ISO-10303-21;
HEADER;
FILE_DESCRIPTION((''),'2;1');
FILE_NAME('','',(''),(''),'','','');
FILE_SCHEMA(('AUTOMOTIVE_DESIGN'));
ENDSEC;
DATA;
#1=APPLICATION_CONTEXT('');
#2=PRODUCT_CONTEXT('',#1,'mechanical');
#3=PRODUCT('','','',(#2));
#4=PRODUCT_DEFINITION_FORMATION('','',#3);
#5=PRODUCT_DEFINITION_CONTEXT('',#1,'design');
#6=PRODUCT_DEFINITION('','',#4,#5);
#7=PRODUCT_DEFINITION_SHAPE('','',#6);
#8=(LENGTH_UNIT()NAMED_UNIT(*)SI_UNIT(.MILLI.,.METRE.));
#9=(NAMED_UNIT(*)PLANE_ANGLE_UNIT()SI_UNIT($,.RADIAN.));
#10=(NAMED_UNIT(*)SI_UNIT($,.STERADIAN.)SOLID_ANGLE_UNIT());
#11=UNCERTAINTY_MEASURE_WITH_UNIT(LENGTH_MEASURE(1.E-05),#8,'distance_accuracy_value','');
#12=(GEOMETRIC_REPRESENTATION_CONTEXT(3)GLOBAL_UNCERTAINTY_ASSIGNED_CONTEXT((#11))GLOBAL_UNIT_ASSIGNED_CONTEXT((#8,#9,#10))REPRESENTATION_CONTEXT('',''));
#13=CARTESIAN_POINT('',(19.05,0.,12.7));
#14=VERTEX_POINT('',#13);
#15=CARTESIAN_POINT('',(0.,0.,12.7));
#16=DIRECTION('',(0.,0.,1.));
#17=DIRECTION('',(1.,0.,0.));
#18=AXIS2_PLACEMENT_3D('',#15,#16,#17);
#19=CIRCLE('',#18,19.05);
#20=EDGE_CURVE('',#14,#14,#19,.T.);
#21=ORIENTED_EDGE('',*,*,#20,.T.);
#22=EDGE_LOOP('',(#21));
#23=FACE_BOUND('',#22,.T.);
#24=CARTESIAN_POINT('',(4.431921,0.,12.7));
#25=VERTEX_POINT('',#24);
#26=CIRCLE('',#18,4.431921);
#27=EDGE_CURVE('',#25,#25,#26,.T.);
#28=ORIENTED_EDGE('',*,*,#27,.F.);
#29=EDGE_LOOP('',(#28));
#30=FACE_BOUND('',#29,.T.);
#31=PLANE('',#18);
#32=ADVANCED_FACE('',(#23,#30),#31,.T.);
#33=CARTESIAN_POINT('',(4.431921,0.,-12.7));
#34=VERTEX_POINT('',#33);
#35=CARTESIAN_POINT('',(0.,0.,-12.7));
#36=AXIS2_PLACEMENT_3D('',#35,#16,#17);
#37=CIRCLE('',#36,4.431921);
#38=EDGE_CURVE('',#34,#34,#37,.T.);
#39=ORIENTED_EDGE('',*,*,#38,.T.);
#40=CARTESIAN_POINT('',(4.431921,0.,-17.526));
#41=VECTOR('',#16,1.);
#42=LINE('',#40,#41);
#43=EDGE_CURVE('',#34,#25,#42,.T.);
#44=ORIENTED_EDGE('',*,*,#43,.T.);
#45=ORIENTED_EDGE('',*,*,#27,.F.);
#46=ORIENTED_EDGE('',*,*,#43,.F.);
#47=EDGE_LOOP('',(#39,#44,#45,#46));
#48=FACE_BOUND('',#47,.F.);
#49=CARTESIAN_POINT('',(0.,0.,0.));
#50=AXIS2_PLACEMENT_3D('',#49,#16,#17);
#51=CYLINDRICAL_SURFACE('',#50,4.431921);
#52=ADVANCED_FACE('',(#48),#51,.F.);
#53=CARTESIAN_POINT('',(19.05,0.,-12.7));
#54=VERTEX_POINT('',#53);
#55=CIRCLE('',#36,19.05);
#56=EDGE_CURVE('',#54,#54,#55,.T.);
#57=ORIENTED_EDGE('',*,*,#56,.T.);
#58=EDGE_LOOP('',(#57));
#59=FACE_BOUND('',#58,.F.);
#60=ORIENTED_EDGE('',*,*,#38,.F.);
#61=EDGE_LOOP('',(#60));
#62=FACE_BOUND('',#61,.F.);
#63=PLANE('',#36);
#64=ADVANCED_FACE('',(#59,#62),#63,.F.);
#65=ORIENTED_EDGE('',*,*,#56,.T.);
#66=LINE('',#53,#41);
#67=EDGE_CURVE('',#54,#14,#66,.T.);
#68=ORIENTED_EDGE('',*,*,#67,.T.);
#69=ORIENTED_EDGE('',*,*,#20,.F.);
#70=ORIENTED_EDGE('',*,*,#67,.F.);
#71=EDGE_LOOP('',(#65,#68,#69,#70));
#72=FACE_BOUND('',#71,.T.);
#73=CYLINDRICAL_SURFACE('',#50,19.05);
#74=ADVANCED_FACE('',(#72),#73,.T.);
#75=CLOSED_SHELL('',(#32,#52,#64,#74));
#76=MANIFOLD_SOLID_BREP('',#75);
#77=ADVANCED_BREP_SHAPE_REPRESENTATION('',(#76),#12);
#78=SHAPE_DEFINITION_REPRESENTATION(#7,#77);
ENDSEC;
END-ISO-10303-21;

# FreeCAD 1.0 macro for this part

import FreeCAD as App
import Part
import Sketcher
Q = App.Units.Quantity

doc = App.newDocument("Part")
params = doc.addObject("Spreadsheet::Sheet", "Params")
for row, (alias, value) in enumerate([
    ("sketch1_diameter", "1.5 in"),
    ("pad1_length", "1 in"),
    ("pocket1_length", "1.38 in"),
], start=1):
    params.set(f"A{row}", alias)
    params.set(f"B{row}", "=" + value)
    params.setAlias(f"B{row}", alias)

body = doc.addObject("PartDesign::Body", "Body")

sketch1 = body.newObject("Sketcher::SketchObject", "Sketch")
sketch1.AttachmentSupport = (doc.getObject("XY_Plane"), [""])
sketch1.MapMode = "FlatFace"
sketch1.addGeometry(Part.Circle(App.Vector(0, 0, 0), App.Vector(0, 0, 1), 19), False)
sketch1.addConstraint(Sketcher.Constraint("Coincident", 0, 3, -1, 1))
sketch1.addConstraint(Sketcher.Constraint("Diameter", 0, Q("1.5 in")))
sketch1.setExpression("Constraints[1]", "Params.sketch1_diameter")
pad1 = body.newObject("PartDesign::Pad", "Pad")
pad1.Profile = sketch1
pad1.setExpression("Length", "Params.pad1_length")
pad1.Midplane = True

sketch2 = body.newObject("Sketcher::SketchObject", "Sketch001")
sketch2.AttachmentSupport = (doc.getObject("XY_Plane"), [""])
sketch2.MapMode = "FlatFace"
sketch2.addGeometry(Part.Circle(App.Vector(0, 0, 0), App.Vector(0, 0, 1), 4.4), False)
sketch2.addConstraint(Sketcher.Constraint("Coincident", 0, 3, -1, 1))
sketch2.addConstraint(Sketcher.Constraint("Diameter", 0, 8.863842))
pocket1 = body.newObject("PartDesign::Pocket", "Pocket")
pocket1.Profile = sketch2
pocket1.setExpression("Length", "Params.pocket1_length")
pocket1.Midplane = True

doc.recompute()
